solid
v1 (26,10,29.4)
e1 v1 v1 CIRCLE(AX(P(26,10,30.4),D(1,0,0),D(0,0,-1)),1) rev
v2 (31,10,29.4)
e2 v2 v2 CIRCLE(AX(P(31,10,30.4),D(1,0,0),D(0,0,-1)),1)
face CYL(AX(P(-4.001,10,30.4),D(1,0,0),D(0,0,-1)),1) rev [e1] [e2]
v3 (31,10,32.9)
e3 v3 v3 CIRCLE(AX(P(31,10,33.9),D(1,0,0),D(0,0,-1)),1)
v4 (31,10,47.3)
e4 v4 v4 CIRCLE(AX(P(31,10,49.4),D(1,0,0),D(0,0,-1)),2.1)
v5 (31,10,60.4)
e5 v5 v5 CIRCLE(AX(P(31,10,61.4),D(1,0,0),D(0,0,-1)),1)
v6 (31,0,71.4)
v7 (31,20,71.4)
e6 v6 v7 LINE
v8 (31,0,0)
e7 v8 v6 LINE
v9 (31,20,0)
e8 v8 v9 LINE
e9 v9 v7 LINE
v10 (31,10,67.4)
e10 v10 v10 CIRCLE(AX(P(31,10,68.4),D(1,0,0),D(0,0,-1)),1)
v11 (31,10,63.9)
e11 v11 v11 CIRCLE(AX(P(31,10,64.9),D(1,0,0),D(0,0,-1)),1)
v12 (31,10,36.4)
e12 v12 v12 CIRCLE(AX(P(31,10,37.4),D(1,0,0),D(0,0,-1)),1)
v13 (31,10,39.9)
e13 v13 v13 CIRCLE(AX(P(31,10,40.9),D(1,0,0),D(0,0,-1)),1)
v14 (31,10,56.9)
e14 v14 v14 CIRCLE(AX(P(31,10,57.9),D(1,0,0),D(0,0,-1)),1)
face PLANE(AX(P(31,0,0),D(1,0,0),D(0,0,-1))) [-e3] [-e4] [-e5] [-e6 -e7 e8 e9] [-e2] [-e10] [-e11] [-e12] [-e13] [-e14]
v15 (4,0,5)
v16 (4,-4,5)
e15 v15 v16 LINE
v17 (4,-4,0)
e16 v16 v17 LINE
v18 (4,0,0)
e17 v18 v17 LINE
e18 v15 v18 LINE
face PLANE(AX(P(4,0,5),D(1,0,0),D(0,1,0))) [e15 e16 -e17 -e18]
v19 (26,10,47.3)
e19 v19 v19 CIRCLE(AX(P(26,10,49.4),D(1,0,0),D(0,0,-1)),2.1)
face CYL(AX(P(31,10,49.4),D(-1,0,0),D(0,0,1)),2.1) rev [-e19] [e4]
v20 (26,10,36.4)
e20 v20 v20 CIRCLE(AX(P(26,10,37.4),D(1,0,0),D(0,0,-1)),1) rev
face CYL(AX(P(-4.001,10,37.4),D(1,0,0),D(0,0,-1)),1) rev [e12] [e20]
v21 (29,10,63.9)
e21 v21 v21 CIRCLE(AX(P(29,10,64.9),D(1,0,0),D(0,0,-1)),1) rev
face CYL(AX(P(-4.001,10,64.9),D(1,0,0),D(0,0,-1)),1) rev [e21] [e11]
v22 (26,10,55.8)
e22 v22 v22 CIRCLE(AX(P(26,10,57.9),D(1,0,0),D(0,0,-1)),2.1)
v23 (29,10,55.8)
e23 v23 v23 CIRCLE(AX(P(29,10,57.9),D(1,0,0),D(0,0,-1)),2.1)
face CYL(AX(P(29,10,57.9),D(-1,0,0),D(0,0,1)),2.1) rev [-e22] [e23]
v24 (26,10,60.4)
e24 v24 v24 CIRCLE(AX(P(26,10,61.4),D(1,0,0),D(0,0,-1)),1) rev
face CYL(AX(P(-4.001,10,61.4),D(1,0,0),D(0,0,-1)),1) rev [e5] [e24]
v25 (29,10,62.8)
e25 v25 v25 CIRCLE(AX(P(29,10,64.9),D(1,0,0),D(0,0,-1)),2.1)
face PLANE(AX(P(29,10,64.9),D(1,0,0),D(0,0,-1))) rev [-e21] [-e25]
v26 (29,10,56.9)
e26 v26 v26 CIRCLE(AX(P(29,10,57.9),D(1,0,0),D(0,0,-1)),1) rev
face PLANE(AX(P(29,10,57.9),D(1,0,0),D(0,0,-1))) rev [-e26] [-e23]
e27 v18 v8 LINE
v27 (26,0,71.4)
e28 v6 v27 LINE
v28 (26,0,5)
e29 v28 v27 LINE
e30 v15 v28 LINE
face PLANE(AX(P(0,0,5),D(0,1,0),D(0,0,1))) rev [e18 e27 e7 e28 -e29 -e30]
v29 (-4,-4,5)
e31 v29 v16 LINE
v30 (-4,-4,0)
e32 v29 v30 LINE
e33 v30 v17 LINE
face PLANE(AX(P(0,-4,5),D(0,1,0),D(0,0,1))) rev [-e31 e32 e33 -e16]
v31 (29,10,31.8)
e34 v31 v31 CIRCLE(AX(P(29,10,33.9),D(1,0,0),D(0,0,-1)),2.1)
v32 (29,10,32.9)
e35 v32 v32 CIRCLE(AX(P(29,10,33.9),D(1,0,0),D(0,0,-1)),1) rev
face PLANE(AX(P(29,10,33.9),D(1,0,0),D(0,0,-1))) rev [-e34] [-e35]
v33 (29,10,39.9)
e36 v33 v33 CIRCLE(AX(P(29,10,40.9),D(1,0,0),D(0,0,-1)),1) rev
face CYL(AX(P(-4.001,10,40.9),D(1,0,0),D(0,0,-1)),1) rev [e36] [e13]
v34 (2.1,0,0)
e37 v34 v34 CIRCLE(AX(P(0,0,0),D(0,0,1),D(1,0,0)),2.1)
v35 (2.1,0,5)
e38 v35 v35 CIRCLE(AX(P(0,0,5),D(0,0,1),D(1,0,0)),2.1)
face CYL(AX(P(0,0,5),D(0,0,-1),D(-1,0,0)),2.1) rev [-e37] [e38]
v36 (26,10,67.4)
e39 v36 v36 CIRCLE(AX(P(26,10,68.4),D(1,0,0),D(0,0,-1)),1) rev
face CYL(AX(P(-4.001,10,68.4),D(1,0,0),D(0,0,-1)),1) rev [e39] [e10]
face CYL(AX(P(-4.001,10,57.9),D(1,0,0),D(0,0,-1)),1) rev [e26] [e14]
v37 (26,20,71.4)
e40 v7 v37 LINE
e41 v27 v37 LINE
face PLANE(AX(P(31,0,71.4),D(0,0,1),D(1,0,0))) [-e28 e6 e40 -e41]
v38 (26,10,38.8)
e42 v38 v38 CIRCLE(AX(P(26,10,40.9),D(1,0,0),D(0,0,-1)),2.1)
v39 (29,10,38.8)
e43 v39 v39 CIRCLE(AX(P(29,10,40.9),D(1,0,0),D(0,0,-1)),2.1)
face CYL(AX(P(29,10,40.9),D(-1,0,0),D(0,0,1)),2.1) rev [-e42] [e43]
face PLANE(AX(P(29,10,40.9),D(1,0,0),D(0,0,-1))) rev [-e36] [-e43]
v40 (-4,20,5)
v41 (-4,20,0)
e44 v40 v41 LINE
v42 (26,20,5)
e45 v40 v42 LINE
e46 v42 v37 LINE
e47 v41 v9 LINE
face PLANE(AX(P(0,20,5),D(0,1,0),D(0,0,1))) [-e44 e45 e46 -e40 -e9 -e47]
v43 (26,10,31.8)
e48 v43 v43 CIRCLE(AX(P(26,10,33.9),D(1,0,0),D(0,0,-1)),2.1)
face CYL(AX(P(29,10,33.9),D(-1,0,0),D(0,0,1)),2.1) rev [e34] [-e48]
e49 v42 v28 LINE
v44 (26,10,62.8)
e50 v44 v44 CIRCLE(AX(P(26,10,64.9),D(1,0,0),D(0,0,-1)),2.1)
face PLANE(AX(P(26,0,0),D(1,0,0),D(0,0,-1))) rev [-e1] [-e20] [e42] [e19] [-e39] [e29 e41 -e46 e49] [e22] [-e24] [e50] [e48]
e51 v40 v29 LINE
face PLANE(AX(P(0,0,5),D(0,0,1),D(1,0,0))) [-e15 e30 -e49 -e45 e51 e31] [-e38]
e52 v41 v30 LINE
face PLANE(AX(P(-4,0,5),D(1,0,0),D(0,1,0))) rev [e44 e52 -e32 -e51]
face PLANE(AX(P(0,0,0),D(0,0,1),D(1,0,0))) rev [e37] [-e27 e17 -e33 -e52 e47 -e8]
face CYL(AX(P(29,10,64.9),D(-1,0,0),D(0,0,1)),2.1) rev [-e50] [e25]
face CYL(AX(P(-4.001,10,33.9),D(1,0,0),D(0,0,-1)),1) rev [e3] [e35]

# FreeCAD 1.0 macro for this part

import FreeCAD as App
import Part
import Sketcher

V = App.Vector
Q = App.Units.Quantity


def add_polygon(sketch, points):
    """Adds a closed chain of lines whose ends are joined by coincident constraints."""
    first, n = sketch.GeometryCount, len(points)
    for a, b in zip(points, points[1:] + points[:1]):
        sketch.addGeometry(Part.LineSegment(App.Vector(*a, 0), App.Vector(*b, 0)), False)
    for i in range(n):
        sketch.addConstraint(Sketcher.Constraint("Coincident", first + i, 2, first + (i + 1) % n, 1))

doc = App.newDocument("Part")
body = doc.addObject("PartDesign::Body", "Body")

sketch1 = doc.addObject("Sketcher::SketchObject", "Sketch")
body.addObject(sketch1)
sketch1.AttachmentSupport = (doc.XY_Plane, [""])
sketch1.MapMode = "FlatFace"
add_polygon(sketch1, [(26, 20), (-4, 20), (-4, -4), (4, -4), (4, 0), (26, 0)])
sketch1.addGeometry(Part.Circle(V(0, 0, 0), V(0, 0, 1), 2.1), False)
sketch1.addConstraint(Sketcher.Constraint("Horizontal", 0))
sketch1.addConstraint(Sketcher.Constraint("Vertical", 1))
sketch1.addConstraint(Sketcher.Constraint("Horizontal", 2))
sketch1.addConstraint(Sketcher.Constraint("Vertical", 3))
sketch1.addConstraint(Sketcher.Constraint("Horizontal", 4))
sketch1.addConstraint(Sketcher.Constraint("Vertical", 5))
sketch1.addConstraint(Sketcher.Constraint("Coincident", 6, 3, -1, 1))
sketch1.addConstraint(Sketcher.Constraint("PointOnObject", 3, 2, -1))
sketch1.addConstraint(Sketcher.Constraint("Diameter", 6, Q("4.2 mm")))
sketch1.addConstraint(Sketcher.Constraint("DistanceX", 0, 2, 0, 1, Q("30 mm")))
sketch1.addConstraint(Sketcher.Constraint("DistanceX", 2, 1, 2, 2, Q("8 mm")))
sketch1.addConstraint(Sketcher.Constraint("DistanceY", 1, 2, 1, 1, Q("24 mm")))
sketch1.addConstraint(Sketcher.Constraint("DistanceY", 3, 1, 3, 2, Q("4 mm")))
sketch1.addConstraint(Sketcher.Constraint("DistanceX", 0, 2, -1, 1, Q("4 mm")))
pad1 = doc.addObject("PartDesign::Pad", "Pad")
body.addObject(pad1)
pad1.Profile = sketch1
pad1.Length = 5

sketch2 = doc.addObject("Sketcher::SketchObject", "Sketch001")
body.addObject(sketch2)
sketch2.AttachmentSupport = (doc.YZ_Plane, [""])
sketch2.MapMode = "FlatFace"
sketch2.AttachmentOffset = App.Placement(V(0, 0, 26), App.Rotation())
add_polygon(sketch2, [(20, 71.4), (0, 71.4), (0, 0), (20, 0)])
sketch2.addGeometry(Part.Circle(V(10, 49.4, 0), V(0, 0, 1), 2.1), False)
sketch2.addConstraint(Sketcher.Constraint("Horizontal", 0))
sketch2.addConstraint(Sketcher.Constraint("Vertical", 1))
sketch2.addConstraint(Sketcher.Constraint("Horizontal", 2))
sketch2.addConstraint(Sketcher.Constraint("Vertical", 3))
sketch2.addConstraint(Sketcher.Constraint("Coincident", 1, 2, -1, 1))
sketch2.addConstraint(Sketcher.Constraint("Diameter", 4, Q("4.2 mm")))
sketch2.addConstraint(Sketcher.Constraint("DistanceX", 0, 2, 0, 1, Q("20 mm")))
sketch2.addConstraint(Sketcher.Constraint("DistanceY", 1, 2, 1, 1, Q("71.4 mm")))
sketch2.addConstraint(Sketcher.Constraint("DistanceX", -1, 1, 4, 3, Q("10 mm")))
sketch2.addConstraint(Sketcher.Constraint("DistanceY", 4, 3, 0, 2, Q("22 mm")))
pad2 = doc.addObject("PartDesign::Pad", "Pad001")
body.addObject(pad2)
pad2.Profile = sketch2
pad2.Length = 5

sketch3 = doc.addObject("Sketcher::SketchObject", "Sketch002")
body.addObject(sketch3)
sketch3.AttachmentSupport = (doc.YZ_Plane, [""])
sketch3.MapMode = "FlatFace"
sketch3.AttachmentOffset = App.Placement(V(0, 0, 31), App.Rotation())
sketch3.addGeometry(Part.Circle(V(10, 68.4, 0), V(0, 0, 1), 1), False)
sketch3.addConstraint(Sketcher.Constraint("Diameter", 0, Q("2 mm")))
sketch3.addConstraint(Sketcher.Constraint("DistanceX", -1, 1, 0, 3, Q("10 mm")))
sketch3.addConstraint(Sketcher.Constraint("DistanceY", -1, 1, 0, 3, Q("68.4 mm")))
pocket1 = doc.addObject("PartDesign::Pocket", "Pocket")
body.addObject(pocket1)
pocket1.Profile = sketch3
pocket1.Type = "UpToFirst"

sketch4 = doc.addObject("Sketcher::SketchObject", "Sketch003")
body.addObject(sketch4)
sketch4.AttachmentSupport = (doc.YZ_Plane, [""])
sketch4.MapMode = "FlatFace"
sketch4.AttachmentOffset = App.Placement(V(0, 0, 31), App.Rotation())
sketch4.addGeometry(Part.Circle(V(10, 64.9, 0), V(0, 0, 1), 1), False)
sketch4.addConstraint(Sketcher.Constraint("Diameter", 0, Q("2 mm")))
sketch4.addConstraint(Sketcher.Constraint("DistanceX", -1, 1, 0, 3, Q("10 mm")))
sketch4.addConstraint(Sketcher.Constraint("DistanceY", -1, 1, 0, 3, Q("64.9 mm")))
pocket2 = doc.addObject("PartDesign::Pocket", "Pocket001")
body.addObject(pocket2)
pocket2.Profile = sketch4
pocket2.Type = "UpToFirst"

sketch5 = doc.addObject("Sketcher::SketchObject", "Sketch004")
body.addObject(sketch5)
sketch5.AttachmentSupport = (doc.YZ_Plane, [""])
sketch5.MapMode = "FlatFace"
sketch5.AttachmentOffset = App.Placement(V(0, 0, 31), App.Rotation())
sketch5.addGeometry(Part.Circle(V(10, 61.4, 0), V(0, 0, 1), 1), False)
sketch5.addConstraint(Sketcher.Constraint("Diameter", 0, Q("2 mm")))
sketch5.addConstraint(Sketcher.Constraint("DistanceX", -1, 1, 0, 3, Q("10 mm")))
sketch5.addConstraint(Sketcher.Constraint("DistanceY", -1, 1, 0, 3, Q("61.4 mm")))
pocket3 = doc.addObject("PartDesign::Pocket", "Pocket002")
body.addObject(pocket3)
pocket3.Profile = sketch5
pocket3.Type = "UpToFirst"

sketch6 = doc.addObject("Sketcher::SketchObject", "Sketch005")
body.addObject(sketch6)
sketch6.AttachmentSupport = (doc.YZ_Plane, [""])
sketch6.MapMode = "FlatFace"
sketch6.AttachmentOffset = App.Placement(V(0, 0, 31), App.Rotation())
sketch6.addGeometry(Part.Circle(V(10, 57.9, 0), V(0, 0, 1), 1), False)
sketch6.addConstraint(Sketcher.Constraint("Diameter", 0, Q("2 mm")))
sketch6.addConstraint(Sketcher.Constraint("DistanceX", -1, 1, 0, 3, Q("10 mm")))
sketch6.addConstraint(Sketcher.Constraint("DistanceY", -1, 1, 0, 3, Q("57.9 mm")))
pocket4 = doc.addObject("PartDesign::Pocket", "Pocket003")
body.addObject(pocket4)
pocket4.Profile = sketch6
pocket4.Type = "UpToFirst"

sketch7 = doc.addObject("Sketcher::SketchObject", "Sketch006")
body.addObject(sketch7)
sketch7.AttachmentSupport = (doc.YZ_Plane, [""])
sketch7.MapMode = "FlatFace"
sketch7.AttachmentOffset = App.Placement(V(0, 0, 31), App.Rotation())
sketch7.addGeometry(Part.Circle(V(10, 40.9, 0), V(0, 0, 1), 1), False)
sketch7.addConstraint(Sketcher.Constraint("Diameter", 0, Q("2 mm")))
sketch7.addConstraint(Sketcher.Constraint("DistanceX", -1, 1, 0, 3, Q("10 mm")))
sketch7.addConstraint(Sketcher.Constraint("DistanceY", -1, 1, 0, 3, Q("40.9 mm")))
pocket5 = doc.addObject("PartDesign::Pocket", "Pocket004")
body.addObject(pocket5)
pocket5.Profile = sketch7
pocket5.Type = "UpToFirst"

sketch8 = doc.addObject("Sketcher::SketchObject", "Sketch007")
body.addObject(sketch8)
sketch8.AttachmentSupport = (doc.YZ_Plane, [""])
sketch8.MapMode = "FlatFace"
sketch8.AttachmentOffset = App.Placement(V(0, 0, 31), App.Rotation())
sketch8.addGeometry(Part.Circle(V(10, 37.4, 0), V(0, 0, 1), 1), False)
sketch8.addConstraint(Sketcher.Constraint("Diameter", 0, Q("2 mm")))
sketch8.addConstraint(Sketcher.Constraint("DistanceX", -1, 1, 0, 3, Q("10 mm")))
sketch8.addConstraint(Sketcher.Constraint("DistanceY", -1, 1, 0, 3, Q("37.4 mm")))
pocket6 = doc.addObject("PartDesign::Pocket", "Pocket005")
body.addObject(pocket6)
pocket6.Profile = sketch8
pocket6.Type = "UpToFirst"

sketch9 = doc.addObject("Sketcher::SketchObject", "Sketch008")
body.addObject(sketch9)
sketch9.AttachmentSupport = (doc.YZ_Plane, [""])
sketch9.MapMode = "FlatFace"
sketch9.AttachmentOffset = App.Placement(V(0, 0, 31), App.Rotation())
sketch9.addGeometry(Part.Circle(V(10, 33.9, 0), V(0, 0, 1), 1), False)
sketch9.addConstraint(Sketcher.Constraint("Diameter", 0, Q("2 mm")))
sketch9.addConstraint(Sketcher.Constraint("DistanceX", -1, 1, 0, 3, Q("10 mm")))
sketch9.addConstraint(Sketcher.Constraint("DistanceY", -1, 1, 0, 3, Q("33.9 mm")))
pocket7 = doc.addObject("PartDesign::Pocket", "Pocket006")
body.addObject(pocket7)
pocket7.Profile = sketch9
pocket7.Type = "UpToFirst"

sketch10 = doc.addObject("Sketcher::SketchObject", "Sketch009")
body.addObject(sketch10)
sketch10.AttachmentSupport = (doc.YZ_Plane, [""])
sketch10.MapMode = "FlatFace"
sketch10.AttachmentOffset = App.Placement(V(0, 0, 31), App.Rotation())
sketch10.addGeometry(Part.Circle(V(10, 30.4, 0), V(0, 0, 1), 1), False)
sketch10.addConstraint(Sketcher.Constraint("Diameter", 0, Q("2 mm")))
sketch10.addConstraint(Sketcher.Constraint("DistanceX", -1, 1, 0, 3, Q("10 mm")))
sketch10.addConstraint(Sketcher.Constraint("DistanceY", -1, 1, 0, 3, Q("30.4 mm")))
pocket8 = doc.addObject("PartDesign::Pocket", "Pocket007")
body.addObject(pocket8)
pocket8.Profile = sketch10
pocket8.Type = "UpToFirst"

sketch11 = doc.addObject("Sketcher::SketchObject", "Sketch010")
body.addObject(sketch11)
sketch11.AttachmentSupport = (doc.YZ_Plane, [""])
sketch11.MapMode = "FlatFace"
sketch11.AttachmentOffset = App.Placement(V(0, 0, 26), App.Rotation())
sketch11.addGeometry(Part.Circle(V(10, 57.9, 0), V(0, 0, 1), 2.1), False)
sketch11.addGeometry(Part.Circle(V(10, 64.9, 0), V(0, 0, 1), 2.1), False)
sketch11.addGeometry(Part.Circle(V(10, 40.9, 0), V(0, 0, 1), 2.1), False)
sketch11.addGeometry(Part.Circle(V(10, 33.9, 0), V(0, 0, 1), 2.1), False)
sketch11.addConstraint(Sketcher.Constraint("Equal", 0, 1))
sketch11.addConstraint(Sketcher.Constraint("Equal", 1, 2))
sketch11.addConstraint(Sketcher.Constraint("Equal", 2, 3))
sketch11.addConstraint(Sketcher.Constraint("Vertical", 0, 3, 1, 3))
sketch11.addConstraint(Sketcher.Constraint("Vertical", 1, 3, 2, 3))
sketch11.addConstraint(Sketcher.Constraint("Vertical", 2, 3, 3, 3))
sketch11.addConstraint(Sketcher.Constraint("Diameter", 0, Q("4.2 mm")))
sketch11.addConstraint(Sketcher.Constraint("DistanceX", -1, 1, 0, 3, Q("10 mm")))
sketch11.addConstraint(Sketcher.Constraint("DistanceY", 0, 3, 1, 3, Q("7 mm")))
sketch11.addConstraint(Sketcher.Constraint("DistanceY", 2, 3, 0, 3, Q("17 mm")))
sketch11.addConstraint(Sketcher.Constraint("DistanceY", 3, 3, 2, 3, Q("7 mm")))
sketch11.addConstraint(Sketcher.Constraint("DistanceY", -1, 1, 0, 3, Q("57.9 mm")))
pocket9 = doc.addObject("PartDesign::Pocket", "Pocket008")
body.addObject(pocket9)
pocket9.Profile = sketch11
pocket9.Length = 3
pocket9.Reversed = True

doc.recompute()
